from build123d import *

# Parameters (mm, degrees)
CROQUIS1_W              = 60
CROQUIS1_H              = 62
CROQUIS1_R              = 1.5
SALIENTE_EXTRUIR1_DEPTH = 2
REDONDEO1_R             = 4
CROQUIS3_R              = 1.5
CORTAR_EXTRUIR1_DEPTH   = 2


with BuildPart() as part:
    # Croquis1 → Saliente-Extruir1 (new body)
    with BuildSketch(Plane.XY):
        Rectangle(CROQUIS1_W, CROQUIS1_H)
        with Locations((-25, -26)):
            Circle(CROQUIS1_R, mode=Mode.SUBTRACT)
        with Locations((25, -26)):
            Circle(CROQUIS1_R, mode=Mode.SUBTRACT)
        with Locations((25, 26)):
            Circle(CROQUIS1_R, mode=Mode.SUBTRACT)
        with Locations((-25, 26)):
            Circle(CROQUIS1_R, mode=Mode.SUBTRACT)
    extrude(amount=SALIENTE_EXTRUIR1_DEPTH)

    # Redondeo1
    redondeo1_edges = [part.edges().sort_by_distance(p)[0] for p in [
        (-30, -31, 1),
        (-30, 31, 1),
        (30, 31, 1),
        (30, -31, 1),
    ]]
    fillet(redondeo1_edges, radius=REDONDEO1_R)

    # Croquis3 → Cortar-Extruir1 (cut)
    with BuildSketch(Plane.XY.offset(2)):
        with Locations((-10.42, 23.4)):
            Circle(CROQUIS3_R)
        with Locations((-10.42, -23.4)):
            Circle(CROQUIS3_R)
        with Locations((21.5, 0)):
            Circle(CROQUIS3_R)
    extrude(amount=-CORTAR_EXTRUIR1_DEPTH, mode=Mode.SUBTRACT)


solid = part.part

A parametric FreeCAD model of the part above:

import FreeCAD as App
import Part
import Sketcher
from FreeCAD import Vector
Q = App.Units.Quantity


def edges_at(feature, points):
    """Names of the edges that pass closest to the given points."""
    edges = feature.Shape.Edges
    near = lambda p: min(range(len(edges)), key=lambda i: edges[i].distToShape(Part.Vertex(*p))[0])
    return sorted({f"Edge{near(p) + 1}" for p in points})


def add_polygon(sketch, points):
    """Adds a closed chain of lines whose ends are joined by coincident constraints."""
    first, n = sketch.GeometryCount, len(points)
    for a, b in zip(points, points[1:] + points[:1]):
        sketch.addGeometry(Part.LineSegment(App.Vector(*a, 0), App.Vector(*b, 0)), False)
    for i in range(n):
        sketch.addConstraint(Sketcher.Constraint("Coincident", first + i, 2, first + (i + 1) % n, 1))

doc = App.newDocument("Part")
body = doc.addObject("PartDesign::Body", "Body")

# Sketch on XY plane
sketch1 = body.newObject("Sketcher::SketchObject", "Sketch")
sketch1.AttachmentSupport = (doc.getObject("XY_Plane"), [""])
sketch1.MapMode = "FlatFace"
add_polygon(sketch1, [(-30, 31), (-30, -31), (30, -31), (30, 31)])  # lines 0-3
sketch1.addGeometry(Part.Circle(Vector(-25, -26, 0), Vector(0, 0, 1), 1.5), False)  # 4
sketch1.addGeometry(Part.Circle(Vector(25, -26, 0), Vector(0, 0, 1), 1.5), False)  # 5
sketch1.addGeometry(Part.Circle(Vector(-25, 26, 0), Vector(0, 0, 1), 1.5), False)  # 6
sketch1.addGeometry(Part.Circle(Vector(25, 26, 0), Vector(0, 0, 1), 1.5), False)  # 7
sketch1.addConstraint([
    Sketcher.Constraint("Vertical", 0),
    Sketcher.Constraint("Horizontal", 1),
    Sketcher.Constraint("Vertical", 2),
    Sketcher.Constraint("Horizontal", 3),
    Sketcher.Constraint("Equal", 4, 5),
    Sketcher.Constraint("Equal", 5, 6),
    Sketcher.Constraint("Equal", 6, 7),
    Sketcher.Constraint("Symmetric", 5, 3, 6, 3, -1, 1),
    Sketcher.Constraint("Symmetric", 4, 3, 7, 3, -1, 1),
    Sketcher.Constraint("Symmetric", 0, 2, 2, 2, -1, 1),
    Sketcher.Constraint("Symmetric", 4, 3, 5, 3, -2),
    Sketcher.Constraint("Diameter", 4, Q("3 mm")),
    Sketcher.Constraint("DistanceX", 1, 1, 1, 2, Q("60 mm")),
    Sketcher.Constraint("DistanceY", 0, 2, 0, 1, Q("62 mm")),
    Sketcher.Constraint("DistanceX", 4, 3, -1, 1, Q("25 mm")),
    Sketcher.Constraint("DistanceY", 4, 3, -1, 1, Q("26 mm")),
])
pad1 = body.newObject("PartDesign::Pad", "Pad")
pad1.Profile = sketch1
pad1.Length = 2
doc.recompute()

fillet = body.newObject("PartDesign::Fillet", "Fillet")
fillet.Base = (pad1, edges_at(pad1, [
    (-30, -31, 1),
    (-30, 31, 1),
    (30, 31, 1),
    (30, -31, 1),
]))
fillet.Radius = 4

# Sketch on XY plane
sketch2 = body.newObject("Sketcher::SketchObject", "Sketch001")
sketch2.AttachmentSupport = (doc.getObject("XY_Plane"), [""])
sketch2.MapMode = "FlatFace"
sketch2.AttachmentOffset = App.Placement(Vector(0, 0, 2), App.Rotation())
sketch2.addGeometry([
    Part.Circle(Vector(-10.42, 23.4, 0), Vector(0, 0, 1), 1.5),
    Part.Circle(Vector(-10.42, -23.4, 0), Vector(0, 0, 1), 1.5),
    Part.Circle(Vector(21.5, 0, 0), Vector(0, 0, 1), 1.5),
], False)
sketch2.addConstraint([
    Sketcher.Constraint("Equal", 0, 1),
    Sketcher.Constraint("Equal", 1, 2),
    Sketcher.Constraint("Symmetric", 0, 3, 1, 3, -1),
    Sketcher.Constraint("PointOnObject", 2, 3, -1),
    Sketcher.Constraint("Diameter", 0, Q("3 mm")),
    Sketcher.Constraint("DistanceY", -1, 1, 0, 3, Q("23.4 mm")),
    Sketcher.Constraint("DistanceX", -1, 1, 2, 3, Q("21.5 mm")),
    Sketcher.Constraint("DistanceX", 0, 3, -1, 1, Q("10.42 mm")),
])
pocket1 = body.newObject("PartDesign::Pocket", "Pocket")
pocket1.Profile = sketch2
pocket1.Length = 2

doc.recompute()
